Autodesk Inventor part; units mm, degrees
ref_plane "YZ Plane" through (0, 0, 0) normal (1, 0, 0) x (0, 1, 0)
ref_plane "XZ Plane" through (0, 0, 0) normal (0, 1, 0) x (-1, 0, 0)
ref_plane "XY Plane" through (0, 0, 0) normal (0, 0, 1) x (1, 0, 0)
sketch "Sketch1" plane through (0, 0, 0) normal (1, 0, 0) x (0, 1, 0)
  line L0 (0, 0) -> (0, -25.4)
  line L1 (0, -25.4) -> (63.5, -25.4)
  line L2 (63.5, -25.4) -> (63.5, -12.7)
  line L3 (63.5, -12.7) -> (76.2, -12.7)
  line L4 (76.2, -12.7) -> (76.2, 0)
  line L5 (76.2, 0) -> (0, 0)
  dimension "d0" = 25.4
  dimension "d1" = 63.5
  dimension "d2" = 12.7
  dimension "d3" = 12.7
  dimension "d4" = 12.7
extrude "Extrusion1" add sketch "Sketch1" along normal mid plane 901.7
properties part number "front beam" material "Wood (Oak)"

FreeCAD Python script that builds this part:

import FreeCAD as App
import Part
import Sketcher

V = App.Vector
Q = App.Units.Quantity

doc = App.newDocument("Part")
body = doc.addObject("PartDesign::Body", "Body")

# Sketch on YZ plane
sketch1 = body.newObject("Sketcher::SketchObject", "Sketch")
sketch1.AttachmentSupport = (doc.getObject("YZ_Plane"), [""])
sketch1.MapMode = "FlatFace"
sketch1.addGeometry(Part.LineSegment(V(76.2, 0, 0), V(0, 0, 0)), False)
sketch1.addGeometry(Part.LineSegment(V(0, 0, 0), V(0, -25.4, 0)), False)
sketch1.addGeometry(Part.LineSegment(V(0, -25.4, 0), V(63.5, -25.4, 0)), False)
sketch1.addGeometry(Part.LineSegment(V(63.5, -25.4, 0), V(63.5, -12.7, 0)), False)
sketch1.addGeometry(Part.LineSegment(V(63.5, -12.7, 0), V(76.2, -12.7, 0)), False)
sketch1.addGeometry(Part.LineSegment(V(76.2, -12.7, 0), V(76.2, 0, 0)), False)
sketch1.addConstraint(Sketcher.Constraint("Coincident", 0, 2, 1, 1))
sketch1.addConstraint(Sketcher.Constraint("Coincident", 1, 2, 2, 1))
sketch1.addConstraint(Sketcher.Constraint("Coincident", 2, 2, 3, 1))
sketch1.addConstraint(Sketcher.Constraint("Coincident", 3, 2, 4, 1))
sketch1.addConstraint(Sketcher.Constraint("Coincident", 4, 2, 5, 1))
sketch1.addConstraint(Sketcher.Constraint("Coincident", 5, 2, 0, 1))
sketch1.addConstraint(Sketcher.Constraint("Horizontal", 0))
sketch1.addConstraint(Sketcher.Constraint("Vertical", 1))
sketch1.addConstraint(Sketcher.Constraint("Horizontal", 2))
sketch1.addConstraint(Sketcher.Constraint("Vertical", 3))
sketch1.addConstraint(Sketcher.Constraint("Horizontal", 4))
sketch1.addConstraint(Sketcher.Constraint("Vertical", 5))
sketch1.addConstraint(Sketcher.Constraint("Coincident", 0, 2, -1, 1))
sketch1.addConstraint(Sketcher.Constraint("Equal", 4, 3))
sketch1.addConstraint(Sketcher.Constraint("Equal", 3, 5))
sketch1.addConstraint(Sketcher.Constraint("DistanceY", 1, 2, 1, 1, Q("1 in")))
sketch1.addConstraint(Sketcher.Constraint("DistanceX", 2, 1, 2, 2, Q("2.5 in")))
pad1 = body.newObject("PartDesign::Pad", "Pad")
pad1.Profile = sketch1
pad1.Length = Q("35.5 in")
pad1.Midplane = True

doc.recompute()
